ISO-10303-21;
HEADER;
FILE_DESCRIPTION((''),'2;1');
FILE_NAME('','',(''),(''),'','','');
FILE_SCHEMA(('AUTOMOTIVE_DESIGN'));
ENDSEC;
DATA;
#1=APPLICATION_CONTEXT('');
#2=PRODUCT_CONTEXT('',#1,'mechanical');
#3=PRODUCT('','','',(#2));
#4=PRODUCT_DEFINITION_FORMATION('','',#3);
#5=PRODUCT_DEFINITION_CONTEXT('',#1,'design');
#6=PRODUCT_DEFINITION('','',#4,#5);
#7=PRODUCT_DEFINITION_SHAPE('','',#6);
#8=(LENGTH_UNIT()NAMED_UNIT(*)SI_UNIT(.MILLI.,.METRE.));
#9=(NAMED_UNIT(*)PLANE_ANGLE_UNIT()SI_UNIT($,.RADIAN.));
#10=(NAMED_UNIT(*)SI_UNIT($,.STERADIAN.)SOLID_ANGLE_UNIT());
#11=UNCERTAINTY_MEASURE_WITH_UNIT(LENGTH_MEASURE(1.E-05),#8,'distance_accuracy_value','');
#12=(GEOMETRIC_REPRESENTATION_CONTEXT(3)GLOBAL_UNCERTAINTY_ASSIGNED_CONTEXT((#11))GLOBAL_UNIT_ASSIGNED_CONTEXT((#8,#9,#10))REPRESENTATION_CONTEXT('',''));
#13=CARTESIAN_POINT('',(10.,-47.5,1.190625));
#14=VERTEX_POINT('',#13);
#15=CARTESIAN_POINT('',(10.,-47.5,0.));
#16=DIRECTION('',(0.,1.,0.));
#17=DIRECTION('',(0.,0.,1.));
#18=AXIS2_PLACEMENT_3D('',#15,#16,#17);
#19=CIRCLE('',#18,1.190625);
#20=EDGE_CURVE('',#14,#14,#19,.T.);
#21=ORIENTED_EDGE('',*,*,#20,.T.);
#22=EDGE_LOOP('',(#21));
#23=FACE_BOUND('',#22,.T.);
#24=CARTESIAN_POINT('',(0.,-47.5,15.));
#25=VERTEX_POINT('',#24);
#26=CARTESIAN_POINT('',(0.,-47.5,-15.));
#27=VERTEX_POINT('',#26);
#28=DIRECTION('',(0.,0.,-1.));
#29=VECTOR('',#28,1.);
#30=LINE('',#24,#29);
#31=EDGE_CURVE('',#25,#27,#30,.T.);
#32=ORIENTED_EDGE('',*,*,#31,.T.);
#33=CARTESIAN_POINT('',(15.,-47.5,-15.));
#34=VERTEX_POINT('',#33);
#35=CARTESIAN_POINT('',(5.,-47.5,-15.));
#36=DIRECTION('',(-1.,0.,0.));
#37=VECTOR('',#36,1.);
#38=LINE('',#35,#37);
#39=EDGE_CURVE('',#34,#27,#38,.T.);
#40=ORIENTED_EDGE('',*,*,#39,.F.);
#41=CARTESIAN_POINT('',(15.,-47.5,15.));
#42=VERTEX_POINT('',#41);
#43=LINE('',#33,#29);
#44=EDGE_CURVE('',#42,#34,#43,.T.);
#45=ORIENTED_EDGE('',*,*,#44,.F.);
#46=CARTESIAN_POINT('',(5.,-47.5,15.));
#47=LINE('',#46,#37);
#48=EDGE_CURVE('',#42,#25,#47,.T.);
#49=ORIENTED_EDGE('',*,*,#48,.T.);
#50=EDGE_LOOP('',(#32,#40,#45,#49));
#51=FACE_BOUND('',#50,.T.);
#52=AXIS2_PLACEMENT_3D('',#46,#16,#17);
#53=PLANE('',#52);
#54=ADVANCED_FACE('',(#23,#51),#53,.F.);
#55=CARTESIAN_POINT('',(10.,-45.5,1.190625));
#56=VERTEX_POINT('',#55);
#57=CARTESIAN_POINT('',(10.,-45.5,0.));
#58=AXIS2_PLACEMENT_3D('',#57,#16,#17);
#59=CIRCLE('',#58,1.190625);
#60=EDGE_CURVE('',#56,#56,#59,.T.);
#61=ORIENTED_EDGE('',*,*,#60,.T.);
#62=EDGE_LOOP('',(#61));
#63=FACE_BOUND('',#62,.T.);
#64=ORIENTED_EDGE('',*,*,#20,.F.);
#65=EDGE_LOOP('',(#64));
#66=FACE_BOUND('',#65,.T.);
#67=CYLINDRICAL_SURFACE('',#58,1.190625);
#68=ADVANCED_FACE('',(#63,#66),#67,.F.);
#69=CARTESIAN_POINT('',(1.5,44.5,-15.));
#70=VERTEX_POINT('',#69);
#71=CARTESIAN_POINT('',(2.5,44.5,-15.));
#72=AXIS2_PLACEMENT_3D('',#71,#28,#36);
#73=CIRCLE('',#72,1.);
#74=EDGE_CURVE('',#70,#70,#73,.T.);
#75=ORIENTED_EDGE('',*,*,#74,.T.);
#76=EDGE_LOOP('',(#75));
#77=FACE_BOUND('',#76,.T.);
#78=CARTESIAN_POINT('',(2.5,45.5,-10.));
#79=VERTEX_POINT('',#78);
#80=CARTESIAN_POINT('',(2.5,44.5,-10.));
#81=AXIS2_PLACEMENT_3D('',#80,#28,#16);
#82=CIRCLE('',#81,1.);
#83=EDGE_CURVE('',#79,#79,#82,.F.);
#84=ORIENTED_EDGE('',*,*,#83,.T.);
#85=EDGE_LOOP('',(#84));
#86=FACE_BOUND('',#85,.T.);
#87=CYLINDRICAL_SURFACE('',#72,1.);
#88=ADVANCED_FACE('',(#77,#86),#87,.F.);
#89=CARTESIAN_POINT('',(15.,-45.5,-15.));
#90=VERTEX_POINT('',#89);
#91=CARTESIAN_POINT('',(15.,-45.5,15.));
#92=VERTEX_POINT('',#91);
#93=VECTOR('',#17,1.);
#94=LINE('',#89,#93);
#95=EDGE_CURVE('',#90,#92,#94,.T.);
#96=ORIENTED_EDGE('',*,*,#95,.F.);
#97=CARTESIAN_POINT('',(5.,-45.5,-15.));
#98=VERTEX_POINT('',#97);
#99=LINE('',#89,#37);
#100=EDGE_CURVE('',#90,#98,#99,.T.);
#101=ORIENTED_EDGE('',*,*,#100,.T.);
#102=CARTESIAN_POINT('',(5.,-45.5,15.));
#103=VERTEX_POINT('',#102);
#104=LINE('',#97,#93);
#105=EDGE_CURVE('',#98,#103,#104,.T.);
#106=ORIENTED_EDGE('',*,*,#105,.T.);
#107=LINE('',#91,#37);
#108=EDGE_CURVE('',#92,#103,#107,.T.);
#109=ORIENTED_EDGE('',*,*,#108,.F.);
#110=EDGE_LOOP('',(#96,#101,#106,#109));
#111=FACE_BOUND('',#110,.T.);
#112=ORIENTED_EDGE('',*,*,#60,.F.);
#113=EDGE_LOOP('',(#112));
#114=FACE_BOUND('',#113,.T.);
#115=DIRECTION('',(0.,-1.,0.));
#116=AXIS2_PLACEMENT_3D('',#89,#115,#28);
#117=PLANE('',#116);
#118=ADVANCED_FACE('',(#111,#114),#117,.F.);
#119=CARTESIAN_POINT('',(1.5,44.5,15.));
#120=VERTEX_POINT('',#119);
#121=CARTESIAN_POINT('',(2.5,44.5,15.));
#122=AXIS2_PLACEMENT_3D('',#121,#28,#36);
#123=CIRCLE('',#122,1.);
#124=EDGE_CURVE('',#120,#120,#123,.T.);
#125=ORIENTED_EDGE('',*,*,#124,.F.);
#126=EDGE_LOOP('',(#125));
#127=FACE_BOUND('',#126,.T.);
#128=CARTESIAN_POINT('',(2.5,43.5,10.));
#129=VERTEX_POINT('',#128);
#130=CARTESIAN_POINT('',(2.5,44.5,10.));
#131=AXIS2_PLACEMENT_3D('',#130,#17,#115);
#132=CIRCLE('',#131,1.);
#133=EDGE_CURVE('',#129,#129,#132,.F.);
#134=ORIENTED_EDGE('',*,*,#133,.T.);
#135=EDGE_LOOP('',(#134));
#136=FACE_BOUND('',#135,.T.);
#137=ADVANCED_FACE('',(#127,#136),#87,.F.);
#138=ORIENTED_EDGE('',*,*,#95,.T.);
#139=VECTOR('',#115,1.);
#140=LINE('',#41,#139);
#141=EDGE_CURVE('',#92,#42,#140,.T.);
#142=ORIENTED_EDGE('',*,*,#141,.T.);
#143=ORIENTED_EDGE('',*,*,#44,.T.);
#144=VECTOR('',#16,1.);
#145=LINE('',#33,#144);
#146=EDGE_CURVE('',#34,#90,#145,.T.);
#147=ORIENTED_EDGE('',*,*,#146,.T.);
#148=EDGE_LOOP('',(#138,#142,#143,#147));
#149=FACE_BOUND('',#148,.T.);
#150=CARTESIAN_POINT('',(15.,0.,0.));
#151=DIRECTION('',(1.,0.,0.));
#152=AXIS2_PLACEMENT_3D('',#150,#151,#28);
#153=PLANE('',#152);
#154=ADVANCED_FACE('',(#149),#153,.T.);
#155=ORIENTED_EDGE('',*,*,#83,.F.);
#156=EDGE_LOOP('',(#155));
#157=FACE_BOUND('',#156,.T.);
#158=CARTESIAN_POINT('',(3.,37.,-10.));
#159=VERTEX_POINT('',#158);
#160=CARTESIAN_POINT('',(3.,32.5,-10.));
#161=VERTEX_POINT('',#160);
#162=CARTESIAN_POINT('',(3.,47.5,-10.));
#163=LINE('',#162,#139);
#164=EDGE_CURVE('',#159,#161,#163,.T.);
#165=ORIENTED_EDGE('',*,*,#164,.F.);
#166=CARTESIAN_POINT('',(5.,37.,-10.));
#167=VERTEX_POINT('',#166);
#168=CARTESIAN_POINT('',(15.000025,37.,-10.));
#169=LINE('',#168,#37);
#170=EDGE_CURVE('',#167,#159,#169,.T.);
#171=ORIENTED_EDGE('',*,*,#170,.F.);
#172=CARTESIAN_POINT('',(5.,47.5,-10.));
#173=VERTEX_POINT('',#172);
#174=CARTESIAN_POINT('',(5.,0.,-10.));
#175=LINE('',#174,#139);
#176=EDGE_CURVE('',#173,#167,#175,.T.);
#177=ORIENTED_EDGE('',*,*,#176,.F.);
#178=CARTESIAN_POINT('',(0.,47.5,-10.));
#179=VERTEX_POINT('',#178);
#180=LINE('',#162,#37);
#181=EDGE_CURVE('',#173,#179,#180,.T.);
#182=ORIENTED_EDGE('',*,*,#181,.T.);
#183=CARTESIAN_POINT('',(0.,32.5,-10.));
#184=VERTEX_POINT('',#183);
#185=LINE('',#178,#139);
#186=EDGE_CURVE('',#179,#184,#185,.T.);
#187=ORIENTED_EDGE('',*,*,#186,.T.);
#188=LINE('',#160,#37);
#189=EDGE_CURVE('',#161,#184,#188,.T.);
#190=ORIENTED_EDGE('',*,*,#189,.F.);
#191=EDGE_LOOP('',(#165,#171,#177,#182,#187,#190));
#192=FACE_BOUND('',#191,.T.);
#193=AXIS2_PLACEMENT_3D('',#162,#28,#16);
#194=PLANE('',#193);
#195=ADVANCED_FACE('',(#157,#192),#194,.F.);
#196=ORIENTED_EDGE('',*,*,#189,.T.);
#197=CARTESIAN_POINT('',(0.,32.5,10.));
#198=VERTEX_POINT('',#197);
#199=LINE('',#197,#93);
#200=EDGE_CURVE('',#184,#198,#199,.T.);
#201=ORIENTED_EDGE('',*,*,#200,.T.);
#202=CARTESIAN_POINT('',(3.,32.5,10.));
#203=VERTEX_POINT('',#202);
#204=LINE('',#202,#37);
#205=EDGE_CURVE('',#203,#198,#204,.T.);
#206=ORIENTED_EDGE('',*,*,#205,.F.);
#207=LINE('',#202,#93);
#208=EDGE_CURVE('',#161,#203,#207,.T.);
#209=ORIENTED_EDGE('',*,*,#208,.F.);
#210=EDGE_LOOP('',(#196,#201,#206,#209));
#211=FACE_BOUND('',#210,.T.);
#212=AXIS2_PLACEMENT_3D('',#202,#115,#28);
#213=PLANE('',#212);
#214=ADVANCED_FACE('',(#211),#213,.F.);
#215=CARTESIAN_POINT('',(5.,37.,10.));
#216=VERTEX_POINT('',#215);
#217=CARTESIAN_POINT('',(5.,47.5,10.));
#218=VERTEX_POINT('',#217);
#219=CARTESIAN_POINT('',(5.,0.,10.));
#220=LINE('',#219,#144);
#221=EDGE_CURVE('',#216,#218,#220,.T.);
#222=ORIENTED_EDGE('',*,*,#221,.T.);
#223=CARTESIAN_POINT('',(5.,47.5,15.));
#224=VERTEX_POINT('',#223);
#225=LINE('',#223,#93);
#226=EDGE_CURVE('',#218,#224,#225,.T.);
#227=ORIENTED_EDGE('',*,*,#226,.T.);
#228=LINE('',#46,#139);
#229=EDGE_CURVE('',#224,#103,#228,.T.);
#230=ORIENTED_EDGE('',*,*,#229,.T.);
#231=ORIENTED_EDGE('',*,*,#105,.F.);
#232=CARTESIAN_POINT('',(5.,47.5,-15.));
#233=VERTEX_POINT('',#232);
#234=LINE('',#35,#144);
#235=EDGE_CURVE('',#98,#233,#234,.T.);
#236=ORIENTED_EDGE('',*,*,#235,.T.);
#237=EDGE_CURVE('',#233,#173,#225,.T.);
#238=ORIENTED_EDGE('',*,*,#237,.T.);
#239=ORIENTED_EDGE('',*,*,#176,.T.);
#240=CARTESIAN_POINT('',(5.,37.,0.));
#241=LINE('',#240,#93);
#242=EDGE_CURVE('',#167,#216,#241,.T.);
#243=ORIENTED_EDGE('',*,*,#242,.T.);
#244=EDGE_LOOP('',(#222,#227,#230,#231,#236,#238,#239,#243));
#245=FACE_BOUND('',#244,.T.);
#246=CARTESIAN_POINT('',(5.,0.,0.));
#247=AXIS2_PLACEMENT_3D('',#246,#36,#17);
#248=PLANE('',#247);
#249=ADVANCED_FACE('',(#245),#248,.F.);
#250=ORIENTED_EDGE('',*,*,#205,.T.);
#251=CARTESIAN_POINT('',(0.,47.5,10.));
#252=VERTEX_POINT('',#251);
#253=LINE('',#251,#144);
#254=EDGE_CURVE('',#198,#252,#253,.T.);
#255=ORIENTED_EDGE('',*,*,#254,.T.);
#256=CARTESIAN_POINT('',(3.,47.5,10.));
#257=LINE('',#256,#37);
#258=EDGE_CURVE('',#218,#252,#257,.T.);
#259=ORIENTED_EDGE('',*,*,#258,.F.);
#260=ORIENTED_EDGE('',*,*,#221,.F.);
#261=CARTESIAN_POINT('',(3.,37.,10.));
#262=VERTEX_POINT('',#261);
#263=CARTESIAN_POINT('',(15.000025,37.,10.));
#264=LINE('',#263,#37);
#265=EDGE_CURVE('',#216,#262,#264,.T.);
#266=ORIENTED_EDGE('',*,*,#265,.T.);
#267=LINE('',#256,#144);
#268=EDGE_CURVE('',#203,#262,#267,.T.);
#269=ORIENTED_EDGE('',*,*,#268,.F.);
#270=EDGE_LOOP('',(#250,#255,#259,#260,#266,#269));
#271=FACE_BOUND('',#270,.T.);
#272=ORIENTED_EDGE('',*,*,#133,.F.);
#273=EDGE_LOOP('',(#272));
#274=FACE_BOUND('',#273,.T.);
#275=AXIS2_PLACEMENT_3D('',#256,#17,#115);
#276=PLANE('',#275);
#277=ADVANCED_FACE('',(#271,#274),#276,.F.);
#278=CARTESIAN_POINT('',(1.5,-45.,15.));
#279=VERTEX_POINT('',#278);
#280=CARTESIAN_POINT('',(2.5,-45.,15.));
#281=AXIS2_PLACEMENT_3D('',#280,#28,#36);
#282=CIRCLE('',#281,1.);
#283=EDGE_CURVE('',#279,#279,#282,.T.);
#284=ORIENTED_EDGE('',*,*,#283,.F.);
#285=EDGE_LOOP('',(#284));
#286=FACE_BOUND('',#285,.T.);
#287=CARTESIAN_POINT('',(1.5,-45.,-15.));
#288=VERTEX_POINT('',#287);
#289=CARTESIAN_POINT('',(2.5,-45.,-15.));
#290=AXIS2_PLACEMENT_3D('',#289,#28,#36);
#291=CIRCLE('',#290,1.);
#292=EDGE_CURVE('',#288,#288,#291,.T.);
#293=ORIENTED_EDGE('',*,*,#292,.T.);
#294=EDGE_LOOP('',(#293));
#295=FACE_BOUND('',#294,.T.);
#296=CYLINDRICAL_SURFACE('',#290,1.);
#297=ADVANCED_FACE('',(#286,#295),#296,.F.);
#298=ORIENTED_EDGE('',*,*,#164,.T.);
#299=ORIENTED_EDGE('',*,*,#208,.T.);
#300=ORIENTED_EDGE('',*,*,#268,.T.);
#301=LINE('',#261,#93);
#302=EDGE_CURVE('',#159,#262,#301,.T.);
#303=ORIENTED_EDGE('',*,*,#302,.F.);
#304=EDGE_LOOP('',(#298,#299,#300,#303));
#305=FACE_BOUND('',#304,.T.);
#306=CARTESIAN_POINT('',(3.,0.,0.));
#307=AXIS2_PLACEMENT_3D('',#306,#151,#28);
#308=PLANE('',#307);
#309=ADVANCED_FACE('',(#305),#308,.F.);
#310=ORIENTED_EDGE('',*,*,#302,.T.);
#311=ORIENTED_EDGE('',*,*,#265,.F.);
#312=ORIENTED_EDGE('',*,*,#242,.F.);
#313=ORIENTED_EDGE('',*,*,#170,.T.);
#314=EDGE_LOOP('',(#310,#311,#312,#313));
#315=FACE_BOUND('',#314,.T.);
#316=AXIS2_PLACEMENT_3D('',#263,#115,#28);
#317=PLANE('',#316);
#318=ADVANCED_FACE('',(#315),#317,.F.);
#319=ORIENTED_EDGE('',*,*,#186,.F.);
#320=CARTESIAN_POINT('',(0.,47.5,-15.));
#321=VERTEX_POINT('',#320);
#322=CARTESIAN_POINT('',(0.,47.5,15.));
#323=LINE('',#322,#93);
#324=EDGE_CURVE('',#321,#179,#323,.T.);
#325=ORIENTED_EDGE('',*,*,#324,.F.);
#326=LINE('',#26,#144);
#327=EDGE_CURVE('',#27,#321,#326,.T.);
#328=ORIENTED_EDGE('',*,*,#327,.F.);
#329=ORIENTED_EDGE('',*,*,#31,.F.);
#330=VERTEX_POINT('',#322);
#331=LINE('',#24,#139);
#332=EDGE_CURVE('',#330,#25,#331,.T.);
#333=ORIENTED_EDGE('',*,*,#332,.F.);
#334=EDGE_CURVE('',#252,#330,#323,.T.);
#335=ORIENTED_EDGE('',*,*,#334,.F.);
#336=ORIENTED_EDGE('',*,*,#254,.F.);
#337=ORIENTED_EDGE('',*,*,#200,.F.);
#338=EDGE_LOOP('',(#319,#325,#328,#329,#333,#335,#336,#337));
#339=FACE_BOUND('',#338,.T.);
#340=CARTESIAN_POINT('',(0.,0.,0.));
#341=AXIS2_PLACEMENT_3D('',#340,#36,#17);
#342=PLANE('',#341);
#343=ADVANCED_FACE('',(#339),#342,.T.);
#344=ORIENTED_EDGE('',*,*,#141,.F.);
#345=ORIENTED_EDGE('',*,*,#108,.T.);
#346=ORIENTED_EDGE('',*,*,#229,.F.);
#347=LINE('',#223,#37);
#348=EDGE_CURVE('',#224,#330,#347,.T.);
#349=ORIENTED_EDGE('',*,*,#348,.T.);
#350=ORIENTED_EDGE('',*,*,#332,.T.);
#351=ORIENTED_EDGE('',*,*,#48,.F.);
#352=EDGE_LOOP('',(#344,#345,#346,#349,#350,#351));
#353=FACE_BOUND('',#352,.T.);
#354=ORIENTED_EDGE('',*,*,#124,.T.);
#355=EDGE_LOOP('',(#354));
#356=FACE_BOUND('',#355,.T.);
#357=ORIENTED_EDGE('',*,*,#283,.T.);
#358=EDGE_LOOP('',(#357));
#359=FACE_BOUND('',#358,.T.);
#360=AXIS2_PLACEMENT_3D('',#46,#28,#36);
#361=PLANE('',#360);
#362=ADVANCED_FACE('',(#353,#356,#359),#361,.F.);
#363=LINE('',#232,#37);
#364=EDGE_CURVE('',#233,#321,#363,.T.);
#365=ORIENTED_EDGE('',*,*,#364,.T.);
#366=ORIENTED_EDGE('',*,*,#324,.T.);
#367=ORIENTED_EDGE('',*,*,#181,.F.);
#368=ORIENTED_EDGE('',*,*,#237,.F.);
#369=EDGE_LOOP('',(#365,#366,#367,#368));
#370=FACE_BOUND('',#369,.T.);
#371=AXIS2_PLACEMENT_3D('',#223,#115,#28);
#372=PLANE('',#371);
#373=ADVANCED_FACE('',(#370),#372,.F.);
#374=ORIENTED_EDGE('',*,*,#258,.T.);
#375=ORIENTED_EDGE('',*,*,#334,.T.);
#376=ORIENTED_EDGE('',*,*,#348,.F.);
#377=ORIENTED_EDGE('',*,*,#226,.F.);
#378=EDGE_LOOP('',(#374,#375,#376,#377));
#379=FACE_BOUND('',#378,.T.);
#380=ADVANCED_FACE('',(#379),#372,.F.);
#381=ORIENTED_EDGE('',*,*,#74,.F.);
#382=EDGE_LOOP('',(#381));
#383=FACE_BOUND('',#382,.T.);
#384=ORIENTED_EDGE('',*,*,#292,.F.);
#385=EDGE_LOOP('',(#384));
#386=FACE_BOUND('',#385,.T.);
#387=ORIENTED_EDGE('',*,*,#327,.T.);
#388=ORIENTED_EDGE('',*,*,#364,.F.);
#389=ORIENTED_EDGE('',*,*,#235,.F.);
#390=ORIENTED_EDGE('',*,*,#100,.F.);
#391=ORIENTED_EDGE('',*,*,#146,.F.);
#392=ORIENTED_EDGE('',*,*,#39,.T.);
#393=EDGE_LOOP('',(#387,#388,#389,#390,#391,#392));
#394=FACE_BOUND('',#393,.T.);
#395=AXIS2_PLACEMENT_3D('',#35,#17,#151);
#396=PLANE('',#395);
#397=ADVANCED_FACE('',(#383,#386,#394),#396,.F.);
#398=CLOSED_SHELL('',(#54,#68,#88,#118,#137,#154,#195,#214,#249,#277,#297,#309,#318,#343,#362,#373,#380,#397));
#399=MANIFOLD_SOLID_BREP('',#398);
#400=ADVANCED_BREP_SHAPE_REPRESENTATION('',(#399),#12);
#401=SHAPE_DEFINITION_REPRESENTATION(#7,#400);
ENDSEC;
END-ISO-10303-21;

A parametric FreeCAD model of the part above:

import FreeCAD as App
import Part
import Sketcher
from FreeCAD import Vector


def add_polygon(sketch, points):
    """Adds a closed chain of lines whose ends are joined by coincident constraints."""
    first, n = sketch.GeometryCount, len(points)
    for a, b in zip(points, points[1:] + points[:1]):
        sketch.addGeometry(Part.LineSegment(App.Vector(*a, 0), App.Vector(*b, 0)), False)
    for i in range(n):
        sketch.addConstraint(Sketcher.Constraint("Coincident", first + i, 2, first + (i + 1) % n, 1))

doc = App.newDocument("Part")
body = doc.addObject("PartDesign::Body", "Body")

sketch1 = doc.addObject("Sketcher::SketchObject", "Sketch")
body.addObject(sketch1)
sketch1.AttachmentSupport = (doc.YZ_Plane, [""])
sketch1.MapMode = "FlatFace"
add_polygon(sketch1, [(47.5, 15), (-47.5, 15), (-47.5, -15), (47.5, -15)])
sketch1.addConstraint(Sketcher.Constraint("Horizontal", 0))
sketch1.addConstraint(Sketcher.Constraint("Vertical", 1))
sketch1.addConstraint(Sketcher.Constraint("Horizontal", 2))
sketch1.addConstraint(Sketcher.Constraint("Vertical", 3))
sketch1.addConstraint(Sketcher.Constraint("Symmetric", 0, 2, 2, 2, -1, 1))
sketch1.addConstraint(Sketcher.Constraint("DistanceX", 0, 2, 0, 1, 95.0))
sketch1.addConstraint(Sketcher.Constraint("DistanceY", 1, 2, 1, 1, 30.0))
pad1 = doc.addObject("PartDesign::Pad", "Pad")
body.addObject(pad1)
pad1.Profile = sketch1
pad1.Length = 5

sketch2 = doc.addObject("Sketcher::SketchObject", "Sketch001")
body.addObject(sketch2)
sketch2.AttachmentSupport = (doc.XY_Plane, [""])
sketch2.MapMode = "FlatFace"
sketch2.AttachmentOffset = App.Placement(Vector(0, 0, -15), App.Rotation())
sketch2.addGeometry(Part.Circle(Vector(2.5, 44.5, 0), Vector(0, 0, 1), 1), False)
sketch2.addConstraint(Sketcher.Constraint("Diameter", 0, 2.0))
sketch2.addConstraint(Sketcher.Constraint("DistanceX", -1, 1, 0, 3, 2.5))
sketch2.addConstraint(Sketcher.Constraint("DistanceY", -1, 1, 0, 3, 44.5))
doc.recompute()
hole = doc.addObject("PartDesign::Hole", "Hole")
body.addObject(hole)
hole.Profile = sketch2
hole.ThreadType = "None"
hole.Diameter = 2
hole.DepthType = "ThroughAll"
hole.Reversed = True

sketch3 = doc.addObject("Sketcher::SketchObject", "Sketch002")
body.addObject(sketch3)
sketch3.AttachmentSupport = (doc.YZ_Plane, [""])
sketch3.MapMode = "FlatFace"
sketch3.AttachmentOffset = App.Placement(Vector(0, 0, 5), App.Rotation())
add_polygon(sketch3, [(-45.5, 15), (-47.5, 15), (-47.5, -15), (-45.5, -15)])
sketch3.addConstraint(Sketcher.Constraint("Horizontal", 0))
sketch3.addConstraint(Sketcher.Constraint("Vertical", 1))
sketch3.addConstraint(Sketcher.Constraint("Horizontal", 2))
sketch3.addConstraint(Sketcher.Constraint("Vertical", 3))
sketch3.addConstraint(Sketcher.Constraint("DistanceX", 0, 2, 0, 1, 2.0))
sketch3.addConstraint(Sketcher.Constraint("DistanceY", 1, 2, 1, 1, 30.0))
sketch3.addConstraint(Sketcher.Constraint("DistanceY", -1, 1, 0, 2, 15.0))
sketch3.addConstraint(Sketcher.Constraint("DistanceX", 0, 2, -1, 1, 47.5))
pad2 = doc.addObject("PartDesign::Pad", "Pad001")
body.addObject(pad2)
pad2.Profile = sketch3
pad2.Length = 10

sketch4 = doc.addObject("Sketcher::SketchObject", "Sketch003")
body.addObject(sketch4)
sketch4.AttachmentSupport = (doc.XZ_Plane, [""])
sketch4.MapMode = "FlatFace"
sketch4.AttachmentOffset = App.Placement(Vector(0, 0, 45.5), App.Rotation())
sketch4.addGeometry(Part.Circle(Vector(10, 0, 0), Vector(0, 0, 1), 1.190625), False)
sketch4.addConstraint(Sketcher.Constraint("PointOnObject", 0, 3, -1))
sketch4.addConstraint(Sketcher.Constraint("DistanceX", -1, 1, 0, 3, 10.0))
sketch4.addConstraint(Sketcher.Constraint("Diameter", 0, 2.38125))
doc.recompute()
hole2 = doc.addObject("PartDesign::Hole", "Hole001")
body.addObject(hole2)
hole2.Profile = sketch4
hole2.ThreadType = "None"
hole2.Diameter = 2.38125
hole2.DepthType = "ThroughAll"
hole2.Reversed = True

sketch5 = doc.addObject("Sketcher::SketchObject", "Sketch004")
body.addObject(sketch5)
sketch5.AttachmentSupport = (doc.YZ_Plane, [""])
sketch5.MapMode = "FlatFace"
add_polygon(sketch5, [(47.5, -10), (32.5, -10), (32.5, 10), (47.5, 10)])
sketch5.addConstraint(Sketcher.Constraint("Horizontal", 0))
sketch5.addConstraint(Sketcher.Constraint("Vertical", 1))
sketch5.addConstraint(Sketcher.Constraint("Horizontal", 2))
sketch5.addConstraint(Sketcher.Constraint("Vertical", 3))
sketch5.addConstraint(Sketcher.Constraint("DistanceX", 0, 2, 0, 1, 15.0))
sketch5.addConstraint(Sketcher.Constraint("DistanceY", 1, 1, 1, 2, 20.0))
sketch5.addConstraint(Sketcher.Constraint("DistanceY", 0, 2, -1, 1, 10.0))
sketch5.addConstraint(Sketcher.Constraint("DistanceX", -1, 1, 0, 2, 32.5))
pocket1 = doc.addObject("PartDesign::Pocket", "Pocket")
body.addObject(pocket1)
pocket1.Profile = sketch5
pocket1.Length = 3
pocket1.Reversed = True

sketch6 = doc.addObject("Sketcher::SketchObject", "Sketch005")
body.addObject(sketch6)
sketch6.AttachmentSupport = (doc.YZ_Plane, [""])
sketch6.MapMode = "FlatFace"
sketch6.AttachmentOffset = App.Placement(Vector(0, 0, 3), App.Rotation())
add_polygon(sketch6, [(47.5, -10), (37, -10), (37, 10), (47.5, 10)])
sketch6.addConstraint(Sketcher.Constraint("Horizontal", 0))
sketch6.addConstraint(Sketcher.Constraint("Vertical", 1))
sketch6.addConstraint(Sketcher.Constraint("Horizontal", 2))
sketch6.addConstraint(Sketcher.Constraint("Vertical", 3))
sketch6.addConstraint(Sketcher.Constraint("DistanceY", 1, 1, 1, 2, 20.0))
sketch6.addConstraint(Sketcher.Constraint("DistanceX", 0, 2, 0, 1, 10.5))
sketch6.addConstraint(Sketcher.Constraint("DistanceX", -1, 1, 0, 2, 37.0))
sketch6.addConstraint(Sketcher.Constraint("DistanceY", 0, 2, -1, 1, 10.0))
pocket2 = doc.addObject("PartDesign::Pocket", "Pocket001")
body.addObject(pocket2)
pocket2.Profile = sketch6
pocket2.Type = "ThroughAll"
pocket2.Reversed = True

sketch7 = doc.addObject("Sketcher::SketchObject", "Sketch006")
body.addObject(sketch7)
sketch7.AttachmentSupport = (doc.XY_Plane, [""])
sketch7.MapMode = "FlatFace"
sketch7.AttachmentOffset = App.Placement(Vector(0, 0, -15), App.Rotation())
sketch7.addGeometry(Part.Circle(Vector(2.5, -45, 0), Vector(0, 0, 1), 1), False)
sketch7.addConstraint(Sketcher.Constraint("Diameter", 0, 2.0))
sketch7.addConstraint(Sketcher.Constraint("DistanceY", 0, 3, -1, 1, 45.0))
sketch7.addConstraint(Sketcher.Constraint("DistanceX", -1, 1, 0, 3, 2.5))
doc.recompute()
hole3 = doc.addObject("PartDesign::Hole", "Hole002")
body.addObject(hole3)
hole3.Profile = sketch7
hole3.ThreadType = "None"
hole3.Diameter = 2
hole3.DepthType = "ThroughAll"
hole3.Reversed = True

doc.recompute()
